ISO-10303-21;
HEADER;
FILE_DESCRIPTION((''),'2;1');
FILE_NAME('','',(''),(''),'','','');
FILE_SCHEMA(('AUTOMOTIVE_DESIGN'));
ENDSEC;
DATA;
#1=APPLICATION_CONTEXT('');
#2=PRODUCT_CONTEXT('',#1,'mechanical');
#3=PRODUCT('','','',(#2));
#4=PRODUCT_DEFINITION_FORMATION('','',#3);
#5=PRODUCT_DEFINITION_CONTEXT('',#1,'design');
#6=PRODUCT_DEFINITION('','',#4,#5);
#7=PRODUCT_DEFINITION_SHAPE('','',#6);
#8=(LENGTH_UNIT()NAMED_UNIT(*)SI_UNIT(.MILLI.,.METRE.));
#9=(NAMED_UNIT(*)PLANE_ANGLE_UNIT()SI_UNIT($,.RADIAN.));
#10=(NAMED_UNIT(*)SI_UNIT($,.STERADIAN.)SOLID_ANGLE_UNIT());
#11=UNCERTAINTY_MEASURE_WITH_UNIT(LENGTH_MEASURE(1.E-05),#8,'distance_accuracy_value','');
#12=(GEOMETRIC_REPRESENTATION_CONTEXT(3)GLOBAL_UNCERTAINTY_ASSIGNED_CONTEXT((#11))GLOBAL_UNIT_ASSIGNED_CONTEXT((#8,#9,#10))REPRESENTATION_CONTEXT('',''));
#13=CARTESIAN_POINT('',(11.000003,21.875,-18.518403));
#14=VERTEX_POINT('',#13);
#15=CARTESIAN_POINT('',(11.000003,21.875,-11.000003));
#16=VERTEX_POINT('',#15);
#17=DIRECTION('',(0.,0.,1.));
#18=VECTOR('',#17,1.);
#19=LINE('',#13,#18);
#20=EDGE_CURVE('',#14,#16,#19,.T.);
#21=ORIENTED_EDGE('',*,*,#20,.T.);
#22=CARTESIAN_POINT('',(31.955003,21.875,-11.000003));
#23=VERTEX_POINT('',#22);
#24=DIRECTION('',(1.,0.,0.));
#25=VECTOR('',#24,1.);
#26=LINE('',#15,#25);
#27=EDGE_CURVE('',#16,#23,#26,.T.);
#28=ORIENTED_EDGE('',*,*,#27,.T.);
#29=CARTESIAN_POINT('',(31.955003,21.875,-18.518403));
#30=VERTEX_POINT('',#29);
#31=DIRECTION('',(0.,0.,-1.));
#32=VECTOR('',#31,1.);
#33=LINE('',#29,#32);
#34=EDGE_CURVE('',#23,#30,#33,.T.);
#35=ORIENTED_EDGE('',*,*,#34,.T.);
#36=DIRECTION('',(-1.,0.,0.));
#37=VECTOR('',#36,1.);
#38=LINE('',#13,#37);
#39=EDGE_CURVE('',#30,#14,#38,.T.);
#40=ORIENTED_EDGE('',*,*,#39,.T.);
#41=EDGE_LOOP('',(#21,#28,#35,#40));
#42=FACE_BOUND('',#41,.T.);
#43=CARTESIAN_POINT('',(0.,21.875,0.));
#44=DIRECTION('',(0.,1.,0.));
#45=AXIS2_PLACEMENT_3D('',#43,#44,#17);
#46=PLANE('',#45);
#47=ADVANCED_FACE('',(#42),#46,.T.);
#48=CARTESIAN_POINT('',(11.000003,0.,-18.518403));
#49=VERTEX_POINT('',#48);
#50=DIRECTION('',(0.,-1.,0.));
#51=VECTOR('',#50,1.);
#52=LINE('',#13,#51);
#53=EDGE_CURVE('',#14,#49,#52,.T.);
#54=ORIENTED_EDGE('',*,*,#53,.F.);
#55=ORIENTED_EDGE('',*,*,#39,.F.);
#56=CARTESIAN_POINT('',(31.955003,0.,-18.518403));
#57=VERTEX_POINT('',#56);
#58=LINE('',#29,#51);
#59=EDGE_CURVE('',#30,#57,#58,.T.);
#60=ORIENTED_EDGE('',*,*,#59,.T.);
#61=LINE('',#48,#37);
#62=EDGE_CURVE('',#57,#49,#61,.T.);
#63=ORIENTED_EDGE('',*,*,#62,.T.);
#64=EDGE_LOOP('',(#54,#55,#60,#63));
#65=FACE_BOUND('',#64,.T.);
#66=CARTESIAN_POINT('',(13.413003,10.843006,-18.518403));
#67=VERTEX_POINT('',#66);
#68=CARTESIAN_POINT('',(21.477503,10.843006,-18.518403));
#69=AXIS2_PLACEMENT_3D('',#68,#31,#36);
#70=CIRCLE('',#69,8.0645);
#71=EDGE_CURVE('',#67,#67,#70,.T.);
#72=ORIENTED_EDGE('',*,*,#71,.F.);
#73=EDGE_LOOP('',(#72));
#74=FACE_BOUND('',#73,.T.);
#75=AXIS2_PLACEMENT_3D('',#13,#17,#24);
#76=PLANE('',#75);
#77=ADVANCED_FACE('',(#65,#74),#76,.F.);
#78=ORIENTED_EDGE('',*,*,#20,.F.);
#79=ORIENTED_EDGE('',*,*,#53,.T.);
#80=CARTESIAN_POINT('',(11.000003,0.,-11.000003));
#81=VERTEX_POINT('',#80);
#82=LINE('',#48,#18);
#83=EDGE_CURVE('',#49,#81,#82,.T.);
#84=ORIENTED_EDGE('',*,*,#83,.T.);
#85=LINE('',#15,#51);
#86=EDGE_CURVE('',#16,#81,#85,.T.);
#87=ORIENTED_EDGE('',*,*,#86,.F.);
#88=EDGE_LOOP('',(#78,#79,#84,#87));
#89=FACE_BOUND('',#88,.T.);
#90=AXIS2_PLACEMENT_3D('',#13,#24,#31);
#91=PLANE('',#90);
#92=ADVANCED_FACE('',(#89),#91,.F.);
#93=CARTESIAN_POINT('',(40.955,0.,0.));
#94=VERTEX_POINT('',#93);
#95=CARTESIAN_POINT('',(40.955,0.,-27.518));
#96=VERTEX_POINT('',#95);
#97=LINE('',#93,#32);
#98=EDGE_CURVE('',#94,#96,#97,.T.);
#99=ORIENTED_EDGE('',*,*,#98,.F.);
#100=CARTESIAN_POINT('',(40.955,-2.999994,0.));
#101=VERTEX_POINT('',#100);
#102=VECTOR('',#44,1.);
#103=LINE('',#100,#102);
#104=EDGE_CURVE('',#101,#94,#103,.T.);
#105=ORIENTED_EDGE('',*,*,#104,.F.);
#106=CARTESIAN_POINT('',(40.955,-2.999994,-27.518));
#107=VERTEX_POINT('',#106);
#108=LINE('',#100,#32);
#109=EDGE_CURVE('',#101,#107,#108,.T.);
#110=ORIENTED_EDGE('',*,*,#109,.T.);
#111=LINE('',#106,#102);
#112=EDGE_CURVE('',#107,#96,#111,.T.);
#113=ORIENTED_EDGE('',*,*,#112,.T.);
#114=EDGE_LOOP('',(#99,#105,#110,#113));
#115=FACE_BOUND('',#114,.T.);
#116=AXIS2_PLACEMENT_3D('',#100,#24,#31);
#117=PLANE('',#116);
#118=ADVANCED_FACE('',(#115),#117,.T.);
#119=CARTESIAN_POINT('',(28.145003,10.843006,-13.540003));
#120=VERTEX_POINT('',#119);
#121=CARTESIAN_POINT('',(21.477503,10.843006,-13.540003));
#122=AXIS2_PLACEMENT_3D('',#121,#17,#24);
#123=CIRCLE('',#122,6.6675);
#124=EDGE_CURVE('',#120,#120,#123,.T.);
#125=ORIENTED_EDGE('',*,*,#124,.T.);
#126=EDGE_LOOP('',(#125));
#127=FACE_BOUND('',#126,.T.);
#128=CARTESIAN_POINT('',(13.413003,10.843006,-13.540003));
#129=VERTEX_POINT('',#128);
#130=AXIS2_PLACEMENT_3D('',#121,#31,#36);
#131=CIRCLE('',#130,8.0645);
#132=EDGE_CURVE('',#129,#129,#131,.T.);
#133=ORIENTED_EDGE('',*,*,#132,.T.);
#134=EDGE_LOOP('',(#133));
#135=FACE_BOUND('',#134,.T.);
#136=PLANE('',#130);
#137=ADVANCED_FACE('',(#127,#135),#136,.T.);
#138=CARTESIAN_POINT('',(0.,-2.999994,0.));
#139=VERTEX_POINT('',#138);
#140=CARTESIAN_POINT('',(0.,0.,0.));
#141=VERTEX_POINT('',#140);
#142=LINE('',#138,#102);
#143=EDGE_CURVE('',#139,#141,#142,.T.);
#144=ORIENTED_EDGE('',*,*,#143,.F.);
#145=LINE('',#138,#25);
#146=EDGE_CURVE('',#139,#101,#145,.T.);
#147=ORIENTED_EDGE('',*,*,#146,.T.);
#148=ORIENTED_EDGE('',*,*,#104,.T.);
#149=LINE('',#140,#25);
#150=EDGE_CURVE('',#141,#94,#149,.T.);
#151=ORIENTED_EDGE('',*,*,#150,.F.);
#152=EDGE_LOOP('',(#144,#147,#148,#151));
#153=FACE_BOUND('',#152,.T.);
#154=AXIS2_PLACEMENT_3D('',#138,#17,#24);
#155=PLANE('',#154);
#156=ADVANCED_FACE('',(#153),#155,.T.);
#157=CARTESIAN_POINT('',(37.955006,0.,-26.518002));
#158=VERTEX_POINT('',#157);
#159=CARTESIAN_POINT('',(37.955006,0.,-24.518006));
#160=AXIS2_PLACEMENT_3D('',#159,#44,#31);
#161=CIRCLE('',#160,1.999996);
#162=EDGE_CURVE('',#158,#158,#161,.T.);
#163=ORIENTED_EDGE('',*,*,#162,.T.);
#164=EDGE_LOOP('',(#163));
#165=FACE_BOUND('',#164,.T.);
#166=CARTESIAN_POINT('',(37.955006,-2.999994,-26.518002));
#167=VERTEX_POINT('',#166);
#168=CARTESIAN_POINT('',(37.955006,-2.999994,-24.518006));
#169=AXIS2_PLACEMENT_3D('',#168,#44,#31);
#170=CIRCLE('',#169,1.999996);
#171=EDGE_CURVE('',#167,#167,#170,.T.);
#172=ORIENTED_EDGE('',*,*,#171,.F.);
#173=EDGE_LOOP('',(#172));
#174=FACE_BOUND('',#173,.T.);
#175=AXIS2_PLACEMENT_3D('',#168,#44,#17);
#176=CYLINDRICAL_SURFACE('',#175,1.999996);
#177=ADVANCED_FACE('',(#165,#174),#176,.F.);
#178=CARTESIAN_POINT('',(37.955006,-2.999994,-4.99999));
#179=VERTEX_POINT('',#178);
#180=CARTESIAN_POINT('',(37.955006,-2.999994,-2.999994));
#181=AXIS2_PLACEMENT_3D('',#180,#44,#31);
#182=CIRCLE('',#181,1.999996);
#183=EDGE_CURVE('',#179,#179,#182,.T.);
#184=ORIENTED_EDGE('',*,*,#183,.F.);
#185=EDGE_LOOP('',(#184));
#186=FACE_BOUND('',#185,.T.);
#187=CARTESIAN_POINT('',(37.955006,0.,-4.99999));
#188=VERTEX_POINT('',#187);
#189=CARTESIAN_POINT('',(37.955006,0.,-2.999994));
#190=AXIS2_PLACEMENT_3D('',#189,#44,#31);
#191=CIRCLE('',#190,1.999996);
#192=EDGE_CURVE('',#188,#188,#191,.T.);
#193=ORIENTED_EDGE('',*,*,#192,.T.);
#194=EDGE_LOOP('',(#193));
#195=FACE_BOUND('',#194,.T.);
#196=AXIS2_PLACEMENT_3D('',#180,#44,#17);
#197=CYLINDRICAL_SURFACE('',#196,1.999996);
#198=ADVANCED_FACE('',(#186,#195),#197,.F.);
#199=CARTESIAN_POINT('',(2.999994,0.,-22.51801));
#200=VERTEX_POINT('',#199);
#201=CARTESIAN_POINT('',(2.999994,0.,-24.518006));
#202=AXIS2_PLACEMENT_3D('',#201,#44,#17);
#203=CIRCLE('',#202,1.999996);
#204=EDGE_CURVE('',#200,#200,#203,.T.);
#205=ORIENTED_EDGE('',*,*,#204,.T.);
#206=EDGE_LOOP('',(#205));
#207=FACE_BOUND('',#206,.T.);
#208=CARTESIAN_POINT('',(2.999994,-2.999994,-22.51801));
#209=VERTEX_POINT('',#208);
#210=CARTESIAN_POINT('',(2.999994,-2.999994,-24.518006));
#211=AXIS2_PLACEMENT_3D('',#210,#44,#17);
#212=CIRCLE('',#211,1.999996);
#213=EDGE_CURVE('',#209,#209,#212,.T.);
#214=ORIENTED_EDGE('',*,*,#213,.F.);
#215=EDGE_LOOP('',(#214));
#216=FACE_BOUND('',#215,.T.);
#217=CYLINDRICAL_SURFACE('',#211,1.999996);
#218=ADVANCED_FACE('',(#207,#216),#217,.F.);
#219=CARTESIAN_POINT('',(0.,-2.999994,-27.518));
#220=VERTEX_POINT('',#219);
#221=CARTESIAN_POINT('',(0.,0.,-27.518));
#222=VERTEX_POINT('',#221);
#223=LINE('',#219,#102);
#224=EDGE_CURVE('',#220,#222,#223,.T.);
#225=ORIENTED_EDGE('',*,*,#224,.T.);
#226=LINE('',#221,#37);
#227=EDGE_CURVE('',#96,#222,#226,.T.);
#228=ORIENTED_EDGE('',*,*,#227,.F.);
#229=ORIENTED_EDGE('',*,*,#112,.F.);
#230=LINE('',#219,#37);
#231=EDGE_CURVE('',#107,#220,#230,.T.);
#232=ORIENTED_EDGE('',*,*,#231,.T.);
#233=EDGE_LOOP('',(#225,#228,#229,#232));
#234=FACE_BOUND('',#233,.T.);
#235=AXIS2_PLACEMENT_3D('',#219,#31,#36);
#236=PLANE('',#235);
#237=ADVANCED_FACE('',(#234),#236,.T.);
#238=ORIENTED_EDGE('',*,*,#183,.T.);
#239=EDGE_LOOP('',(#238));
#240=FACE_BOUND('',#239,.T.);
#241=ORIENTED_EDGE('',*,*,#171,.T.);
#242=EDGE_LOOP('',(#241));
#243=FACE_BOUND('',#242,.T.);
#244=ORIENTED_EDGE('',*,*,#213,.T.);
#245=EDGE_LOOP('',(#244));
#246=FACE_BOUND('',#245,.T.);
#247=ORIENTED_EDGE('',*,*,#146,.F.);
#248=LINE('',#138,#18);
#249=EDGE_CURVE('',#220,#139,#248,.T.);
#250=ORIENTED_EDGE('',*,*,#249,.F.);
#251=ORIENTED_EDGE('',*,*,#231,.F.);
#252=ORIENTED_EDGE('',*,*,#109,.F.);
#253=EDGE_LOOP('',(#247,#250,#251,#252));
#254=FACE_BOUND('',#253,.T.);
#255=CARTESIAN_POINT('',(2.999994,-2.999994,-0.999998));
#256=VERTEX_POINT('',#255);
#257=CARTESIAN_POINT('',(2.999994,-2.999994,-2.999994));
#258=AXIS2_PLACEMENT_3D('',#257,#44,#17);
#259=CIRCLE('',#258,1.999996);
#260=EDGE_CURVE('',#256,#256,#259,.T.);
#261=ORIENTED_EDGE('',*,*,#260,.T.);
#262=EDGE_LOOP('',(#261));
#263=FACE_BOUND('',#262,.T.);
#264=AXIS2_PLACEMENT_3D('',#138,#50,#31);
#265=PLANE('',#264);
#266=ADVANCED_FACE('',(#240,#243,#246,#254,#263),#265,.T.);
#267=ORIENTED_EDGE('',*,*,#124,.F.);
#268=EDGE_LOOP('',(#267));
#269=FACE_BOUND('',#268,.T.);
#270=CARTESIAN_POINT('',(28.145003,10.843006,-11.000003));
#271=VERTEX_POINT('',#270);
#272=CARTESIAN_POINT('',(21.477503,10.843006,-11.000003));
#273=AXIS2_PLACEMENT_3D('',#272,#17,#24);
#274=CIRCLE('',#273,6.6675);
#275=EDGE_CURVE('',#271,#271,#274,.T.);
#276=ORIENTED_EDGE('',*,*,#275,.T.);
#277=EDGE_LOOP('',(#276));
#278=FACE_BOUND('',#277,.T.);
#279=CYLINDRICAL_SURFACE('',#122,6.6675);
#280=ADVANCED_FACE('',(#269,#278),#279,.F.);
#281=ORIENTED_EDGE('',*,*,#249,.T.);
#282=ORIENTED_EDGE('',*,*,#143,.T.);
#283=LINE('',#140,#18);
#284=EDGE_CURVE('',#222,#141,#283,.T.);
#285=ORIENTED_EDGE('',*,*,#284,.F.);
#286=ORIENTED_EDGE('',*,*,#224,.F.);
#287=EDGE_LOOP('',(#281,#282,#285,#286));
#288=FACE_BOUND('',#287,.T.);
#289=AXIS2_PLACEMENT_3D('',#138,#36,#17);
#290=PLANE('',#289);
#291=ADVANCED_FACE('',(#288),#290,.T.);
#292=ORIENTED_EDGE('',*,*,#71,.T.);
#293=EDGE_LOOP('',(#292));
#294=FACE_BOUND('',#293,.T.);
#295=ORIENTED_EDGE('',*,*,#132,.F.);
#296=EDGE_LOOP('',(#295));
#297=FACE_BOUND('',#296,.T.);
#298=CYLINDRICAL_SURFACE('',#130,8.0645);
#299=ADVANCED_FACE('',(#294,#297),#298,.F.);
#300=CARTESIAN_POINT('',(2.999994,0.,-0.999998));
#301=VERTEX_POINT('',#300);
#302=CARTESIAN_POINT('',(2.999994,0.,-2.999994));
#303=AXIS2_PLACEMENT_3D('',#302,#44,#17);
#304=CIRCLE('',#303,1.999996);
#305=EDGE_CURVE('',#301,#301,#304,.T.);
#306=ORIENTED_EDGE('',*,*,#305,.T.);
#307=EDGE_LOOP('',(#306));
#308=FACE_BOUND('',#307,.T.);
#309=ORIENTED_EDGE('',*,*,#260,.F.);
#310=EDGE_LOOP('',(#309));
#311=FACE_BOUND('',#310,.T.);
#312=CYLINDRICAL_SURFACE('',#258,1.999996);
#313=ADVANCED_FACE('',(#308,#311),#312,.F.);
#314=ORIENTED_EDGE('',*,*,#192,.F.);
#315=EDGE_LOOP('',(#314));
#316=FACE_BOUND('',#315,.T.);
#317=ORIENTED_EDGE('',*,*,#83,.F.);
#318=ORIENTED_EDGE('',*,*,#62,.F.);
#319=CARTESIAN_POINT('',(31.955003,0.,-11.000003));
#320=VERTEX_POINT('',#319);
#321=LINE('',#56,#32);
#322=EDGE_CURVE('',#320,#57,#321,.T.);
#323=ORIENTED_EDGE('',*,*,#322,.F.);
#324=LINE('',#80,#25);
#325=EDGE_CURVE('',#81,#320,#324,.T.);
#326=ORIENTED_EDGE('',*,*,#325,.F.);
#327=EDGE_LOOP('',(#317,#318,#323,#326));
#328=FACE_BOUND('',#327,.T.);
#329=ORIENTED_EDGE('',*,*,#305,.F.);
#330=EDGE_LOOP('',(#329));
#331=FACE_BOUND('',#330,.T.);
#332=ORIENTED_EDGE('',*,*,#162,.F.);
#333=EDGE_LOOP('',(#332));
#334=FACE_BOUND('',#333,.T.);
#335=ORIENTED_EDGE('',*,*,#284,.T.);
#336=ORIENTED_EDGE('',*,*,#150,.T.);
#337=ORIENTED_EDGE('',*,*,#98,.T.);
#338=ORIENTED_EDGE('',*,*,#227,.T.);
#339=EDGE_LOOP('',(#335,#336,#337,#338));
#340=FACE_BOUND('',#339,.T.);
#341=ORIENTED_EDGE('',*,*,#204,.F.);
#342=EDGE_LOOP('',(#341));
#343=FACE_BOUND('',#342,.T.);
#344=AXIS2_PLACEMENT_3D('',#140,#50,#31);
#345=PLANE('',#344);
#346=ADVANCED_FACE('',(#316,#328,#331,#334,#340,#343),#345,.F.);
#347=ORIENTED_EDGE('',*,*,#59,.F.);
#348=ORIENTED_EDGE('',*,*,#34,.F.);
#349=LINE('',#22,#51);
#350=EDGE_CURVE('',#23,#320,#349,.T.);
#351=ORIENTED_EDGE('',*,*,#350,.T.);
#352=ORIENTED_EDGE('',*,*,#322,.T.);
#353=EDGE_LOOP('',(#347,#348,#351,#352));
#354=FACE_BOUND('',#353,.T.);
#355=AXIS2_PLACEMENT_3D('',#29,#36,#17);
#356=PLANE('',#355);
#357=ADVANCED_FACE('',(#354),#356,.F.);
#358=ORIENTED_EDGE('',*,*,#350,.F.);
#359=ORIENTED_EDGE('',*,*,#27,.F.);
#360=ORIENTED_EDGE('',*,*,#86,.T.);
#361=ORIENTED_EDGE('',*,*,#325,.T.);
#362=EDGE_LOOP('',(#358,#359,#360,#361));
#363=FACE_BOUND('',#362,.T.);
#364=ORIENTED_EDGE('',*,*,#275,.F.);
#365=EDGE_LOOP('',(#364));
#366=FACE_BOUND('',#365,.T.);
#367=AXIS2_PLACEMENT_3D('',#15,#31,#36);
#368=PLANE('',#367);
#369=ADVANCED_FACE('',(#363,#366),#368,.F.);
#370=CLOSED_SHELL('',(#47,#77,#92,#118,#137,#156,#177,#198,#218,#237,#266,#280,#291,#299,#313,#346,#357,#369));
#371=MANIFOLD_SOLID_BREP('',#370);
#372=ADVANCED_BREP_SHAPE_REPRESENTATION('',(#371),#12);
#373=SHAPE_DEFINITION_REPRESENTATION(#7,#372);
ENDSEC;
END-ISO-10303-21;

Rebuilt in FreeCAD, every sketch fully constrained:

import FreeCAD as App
import Part
import Sketcher

V = App.Vector
Q = App.Units.Quantity

doc = App.newDocument("Part")
body = doc.addObject("PartDesign::Body", "Body")

sketch1 = body.newObject("Sketcher::SketchObject", "Sketch")
sketch1.AttachmentSupport = (doc.getObject("XZ_Plane"), [""])
sketch1.MapMode = "FlatFace"
sketch1.addGeometry(Part.LineSegment(V(0, -27.518, 0), V(0, 0, 0)), False)
sketch1.addGeometry(Part.LineSegment(V(0, 0, 0), V(40.955, 0, 0)), False)
sketch1.addGeometry(Part.LineSegment(V(40.955, 0, 0), V(40.955, -27.518, 0)), False)
sketch1.addGeometry(Part.LineSegment(V(40.955, -27.518, 0), V(0, -27.518, 0)), False)
sketch1.addConstraint(Sketcher.Constraint("Coincident", 0, 2, 1, 1))
sketch1.addConstraint(Sketcher.Constraint("Coincident", 1, 2, 2, 1))
sketch1.addConstraint(Sketcher.Constraint("Coincident", 2, 2, 3, 1))
sketch1.addConstraint(Sketcher.Constraint("Coincident", 3, 2, 0, 1))
sketch1.addConstraint(Sketcher.Constraint("Vertical", 0))
sketch1.addConstraint(Sketcher.Constraint("Horizontal", 1))
sketch1.addConstraint(Sketcher.Constraint("Vertical", 2))
sketch1.addConstraint(Sketcher.Constraint("Horizontal", 3))
sketch1.addConstraint(Sketcher.Constraint("Coincident", 0, 2, -1, 1))
sketch1.addConstraint(Sketcher.Constraint("DistanceX", 1, 1, 1, 2, 40.955))
sketch1.addConstraint(Sketcher.Constraint("DistanceY", 0, 1, 0, 2, 27.518))
pad1 = body.newObject("PartDesign::Pad", "Pad")
pad1.Profile = sketch1
pad1.Length = 2.999994

sketch2 = body.newObject("Sketcher::SketchObject", "Sketch001")
sketch2.AttachmentSupport = (doc.getObject("XZ_Plane"), [""])
sketch2.MapMode = "FlatFace"
sketch2.addGeometry(Part.LineSegment(V(11.000003, -18.518403, 0), V(11.000003, -11.000003, 0)), False)
sketch2.addGeometry(Part.LineSegment(V(11.000003, -11.000003, 0), V(31.955003, -11.000003, 0)), False)
sketch2.addGeometry(Part.LineSegment(V(31.955003, -11.000003, 0), V(31.955003, -18.518403, 0)), False)
sketch2.addGeometry(Part.LineSegment(V(31.955003, -18.518403, 0), V(11.000003, -18.518403, 0)), False)
sketch2.addConstraint(Sketcher.Constraint("Coincident", 0, 2, 1, 1))
sketch2.addConstraint(Sketcher.Constraint("Coincident", 1, 2, 2, 1))
sketch2.addConstraint(Sketcher.Constraint("Coincident", 2, 2, 3, 1))
sketch2.addConstraint(Sketcher.Constraint("Coincident", 3, 2, 0, 1))
sketch2.addConstraint(Sketcher.Constraint("Vertical", 0))
sketch2.addConstraint(Sketcher.Constraint("Horizontal", 1))
sketch2.addConstraint(Sketcher.Constraint("Vertical", 2))
sketch2.addConstraint(Sketcher.Constraint("Horizontal", 3))
sketch2.addConstraint(Sketcher.Constraint("DistanceX", 1, 1, 1, 2, Q("0.825 in")))
sketch2.addConstraint(Sketcher.Constraint("DistanceY", 0, 1, 0, 2, Q("0.296 in")))
sketch2.addConstraint(Sketcher.Constraint("DistanceX", -1, 1, 0, 2, 11.000003))
sketch2.addConstraint(Sketcher.Constraint("DistanceY", 0, 2, -1, 1, 11.000003))
pad2 = body.newObject("PartDesign::Pad", "Pad001")
pad2.Profile = sketch2
pad2.Length = 21.875
pad2.Reversed = True

sketch3 = body.newObject("Sketcher::SketchObject", "Sketch002")
sketch3.AttachmentSupport = (doc.getObject("XZ_Plane"), [""])
sketch3.MapMode = "FlatFace"
sketch3.addGeometry(Part.Circle(V(2.999994, -24.518006, 0), V(0, 0, 1), 1.999996), False)
sketch3.addGeometry(Part.Circle(V(2.999994, -2.999994, 0), V(0, 0, 1), 1.999996), False)
sketch3.addGeometry(Part.Circle(V(37.955006, -2.999994, 0), V(0, 0, 1), 1.999996), False)
sketch3.addGeometry(Part.Circle(V(37.955006, -24.518006, 0), V(0, 0, 1), 1.999996), False)
sketch3.addConstraint(Sketcher.Constraint("Equal", 0, 1))
sketch3.addConstraint(Sketcher.Constraint("Equal", 1, 2))
sketch3.addConstraint(Sketcher.Constraint("Equal", 2, 3))
sketch3.addConstraint(Sketcher.Constraint("Horizontal", 1, 3, 2, 3))
sketch3.addConstraint(Sketcher.Constraint("Horizontal", 0, 3, 3, 3))
sketch3.addConstraint(Sketcher.Constraint("Vertical", 0, 3, 1, 3))
sketch3.addConstraint(Sketcher.Constraint("Vertical", 2, 3, 3, 3))
sketch3.addConstraint(Sketcher.Constraint("Diameter", 0, 3.999992))
sketch3.addConstraint(Sketcher.Constraint("DistanceX", 1, 3, 2, 3, 34.955012))
sketch3.addConstraint(Sketcher.Constraint("DistanceX", -1, 1, 0, 3, 2.999994))
sketch3.addConstraint(Sketcher.Constraint("DistanceY", 0, 3, -1, 1, 24.518006))
sketch3.addConstraint(Sketcher.Constraint("DistanceY", 1, 3, -1, 1, 2.999994))
pocket1 = body.newObject("PartDesign::Pocket", "Pocket")
pocket1.Profile = sketch3
pocket1.Type = "ThroughAll"
pocket1.Reversed = True

sketch4 = body.newObject("Sketcher::SketchObject", "Sketch003")
sketch4.AttachmentSupport = (doc.getObject("XY_Plane"), [""])
sketch4.MapMode = "FlatFace"
sketch4.AttachmentOffset = App.Placement(V(0, 0, -11.000003), App.Rotation())
sketch4.addGeometry(Part.Circle(V(21.477503, 10.843006, 0), V(0, 0, 1), 6.6675), False)
sketch4.addConstraint(Sketcher.Constraint("Diameter", 0, Q("0.525 in")))
sketch4.addConstraint(Sketcher.Constraint("DistanceX", -1, 1, 0, 3, 21.477503))
sketch4.addConstraint(Sketcher.Constraint("DistanceY", -1, 1, 0, 3, 10.843006))
pocket2 = body.newObject("PartDesign::Pocket", "Pocket001")
pocket2.Profile = sketch4
pocket2.Length = Q("0.1 in")

sketch5 = body.newObject("Sketcher::SketchObject", "Sketch004")
sketch5.AttachmentSupport = (doc.getObject("XY_Plane"), [""])
sketch5.MapMode = "FlatFace"
sketch5.AttachmentOffset = App.Placement(V(0, 0, -18.518403), App.Rotation())
sketch5.addGeometry(Part.Circle(V(21.477503, 10.843006, 0), V(0, 0, 1), 8.0645), False)
sketch5.addConstraint(Sketcher.Constraint("Diameter", 0, Q("0.635 in")))
sketch5.addConstraint(Sketcher.Constraint("DistanceX", -1, 1, 0, 3, 21.477503))
sketch5.addConstraint(Sketcher.Constraint("DistanceY", -1, 1, 0, 3, 10.843006))
pocket3 = body.newObject("PartDesign::Pocket", "Pocket002")
pocket3.Profile = sketch5
pocket3.Length = Q("0.196 in")
pocket3.Reversed = True

doc.recompute()
